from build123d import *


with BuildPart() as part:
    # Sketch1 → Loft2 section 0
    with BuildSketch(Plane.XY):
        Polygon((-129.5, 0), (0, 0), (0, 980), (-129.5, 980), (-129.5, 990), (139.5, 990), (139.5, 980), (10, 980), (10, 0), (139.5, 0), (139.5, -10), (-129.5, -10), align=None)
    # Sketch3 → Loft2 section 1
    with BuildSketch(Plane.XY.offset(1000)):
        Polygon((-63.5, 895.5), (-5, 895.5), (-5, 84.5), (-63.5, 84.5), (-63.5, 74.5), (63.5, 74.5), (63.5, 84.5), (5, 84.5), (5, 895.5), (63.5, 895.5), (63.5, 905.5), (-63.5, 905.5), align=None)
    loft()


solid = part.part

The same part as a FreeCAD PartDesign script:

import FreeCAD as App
import Part
import Sketcher
from FreeCAD import Vector

doc = App.newDocument("Part")
body = doc.addObject("PartDesign::Body", "Body")

sketch1 = body.newObject("Sketcher::SketchObject", "Sketch")
sketch1.AttachmentSupport = (doc.getObject("XY_Plane"), [""])
sketch1.MapMode = "FlatFace"
sketch1.addGeometry(Part.LineSegment(Vector(0, 0, 0), Vector(-130, 0, 0)), False)
sketch1.addGeometry(Part.LineSegment(Vector(-130, 0, 0), Vector(-130, -10, 0)), False)
sketch1.addGeometry(Part.LineSegment(Vector(-130, -10, 0), Vector(140, -10, 0)), False)
sketch1.addGeometry(Part.LineSegment(Vector(140, -10, 0), Vector(140, 0, 0)), False)
sketch1.addGeometry(Part.LineSegment(Vector(140, 0, 0), Vector(10, 0, 0)), False)
sketch1.addGeometry(Part.LineSegment(Vector(10, 0, 0), Vector(10, 980, 0)), False)
sketch1.addGeometry(Part.LineSegment(Vector(10, 980, 0), Vector(140, 980, 0)), False)
sketch1.addGeometry(Part.LineSegment(Vector(140, 980, 0), Vector(140, 990, 0)), False)
sketch1.addGeometry(Part.LineSegment(Vector(140, 990, 0), Vector(-130, 990, 0)), False)
sketch1.addGeometry(Part.LineSegment(Vector(-130, 990, 0), Vector(-130, 980, 0)), False)
sketch1.addGeometry(Part.LineSegment(Vector(-130, 980, 0), Vector(0, 980, 0)), False)
sketch1.addGeometry(Part.LineSegment(Vector(0, 980, 0), Vector(0, 0, 0)), False)
sketch1.addConstraint(Sketcher.Constraint("Coincident", 0, 2, 1, 1))
sketch1.addConstraint(Sketcher.Constraint("Coincident", 1, 2, 2, 1))
sketch1.addConstraint(Sketcher.Constraint("Coincident", 2, 2, 3, 1))
sketch1.addConstraint(Sketcher.Constraint("Coincident", 3, 2, 4, 1))
sketch1.addConstraint(Sketcher.Constraint("Coincident", 4, 2, 5, 1))
sketch1.addConstraint(Sketcher.Constraint("Coincident", 5, 2, 6, 1))
sketch1.addConstraint(Sketcher.Constraint("Coincident", 6, 2, 7, 1))
sketch1.addConstraint(Sketcher.Constraint("Coincident", 7, 2, 8, 1))
sketch1.addConstraint(Sketcher.Constraint("Coincident", 8, 2, 9, 1))
sketch1.addConstraint(Sketcher.Constraint("Coincident", 9, 2, 10, 1))
sketch1.addConstraint(Sketcher.Constraint("Coincident", 10, 2, 11, 1))
sketch1.addConstraint(Sketcher.Constraint("Coincident", 11, 2, 0, 1))
sketch1.addConstraint(Sketcher.Constraint("Horizontal", 0))
sketch1.addConstraint(Sketcher.Constraint("Vertical", 1))
sketch1.addConstraint(Sketcher.Constraint("Horizontal", 2))
sketch1.addConstraint(Sketcher.Constraint("Vertical", 3))
sketch1.addConstraint(Sketcher.Constraint("Horizontal", 4))
sketch1.addConstraint(Sketcher.Constraint("Vertical", 5))
sketch1.addConstraint(Sketcher.Constraint("Horizontal", 6))
sketch1.addConstraint(Sketcher.Constraint("Vertical", 7))
sketch1.addConstraint(Sketcher.Constraint("Horizontal", 8))
sketch1.addConstraint(Sketcher.Constraint("Vertical", 9))
sketch1.addConstraint(Sketcher.Constraint("Horizontal", 10))
sketch1.addConstraint(Sketcher.Constraint("Vertical", 11))
sketch1.addConstraint(Sketcher.Constraint("Coincident", 11, 2, -1, 1))
sketch1.addConstraint(Sketcher.Constraint("PointOnObject", 3, 2, -1))
sketch1.addConstraint(Sketcher.Constraint("Horizontal", 6, 2, 9, 2))
sketch1.addConstraint(Sketcher.Constraint("Vertical", 3, 2, 6, 2))
sketch1.addConstraint(Sketcher.Constraint("Vertical", 1, 2, 8, 2))
sketch1.addConstraint(Sketcher.Constraint("Equal", 0, 4))
sketch1.addConstraint(Sketcher.Constraint("Equal", 3, 7))
sketch1.addConstraint(Sketcher.Constraint("DistanceX", 2, 1, 2, 2, 269.0))
sketch1.addConstraint(Sketcher.Constraint("DistanceY", 1, 2, 1, 1, 10.0))
sketch1.addConstraint(Sketcher.Constraint("DistanceY", 5, 1, 5, 2, 980.0))
sketch1.addConstraint(Sketcher.Constraint("DistanceX", 0, 2, 0, 1, 129.5))

sketch2 = body.newObject("Sketcher::SketchObject", "Sketch001")
sketch2.AttachmentSupport = (doc.getObject("XY_Plane"), [""])
sketch2.MapMode = "FlatFace"
sketch2.AttachmentOffset = App.Placement(Vector(0, 0, 1000), App.Rotation())
sketch2.addGeometry(Part.LineSegment(Vector(-64, 896, 0), Vector(-5, 896, 0)), False)
sketch2.addGeometry(Part.LineSegment(Vector(-5, 896, 0), Vector(-5, 84, 0)), False)
sketch2.addGeometry(Part.LineSegment(Vector(-5, 84, 0), Vector(-64, 84, 0)), False)
sketch2.addGeometry(Part.LineSegment(Vector(-64, 84, 0), Vector(-64, 74, 0)), False)
sketch2.addGeometry(Part.LineSegment(Vector(-64, 74, 0), Vector(64, 74, 0)), False)
sketch2.addGeometry(Part.LineSegment(Vector(64, 74, 0), Vector(64, 84, 0)), False)
sketch2.addGeometry(Part.LineSegment(Vector(64, 84, 0), Vector(5, 84, 0)), False)
sketch2.addGeometry(Part.LineSegment(Vector(5, 84, 0), Vector(5, 896, 0)), False)
sketch2.addGeometry(Part.LineSegment(Vector(5, 896, 0), Vector(64, 896, 0)), False)
sketch2.addGeometry(Part.LineSegment(Vector(64, 896, 0), Vector(64, 906, 0)), False)
sketch2.addGeometry(Part.LineSegment(Vector(64, 906, 0), Vector(-64, 906, 0)), False)
sketch2.addGeometry(Part.LineSegment(Vector(-64, 906, 0), Vector(-64, 896, 0)), False)
sketch2.addConstraint(Sketcher.Constraint("Coincident", 0, 2, 1, 1))
sketch2.addConstraint(Sketcher.Constraint("Coincident", 1, 2, 2, 1))
sketch2.addConstraint(Sketcher.Constraint("Coincident", 2, 2, 3, 1))
sketch2.addConstraint(Sketcher.Constraint("Coincident", 3, 2, 4, 1))
sketch2.addConstraint(Sketcher.Constraint("Coincident", 4, 2, 5, 1))
sketch2.addConstraint(Sketcher.Constraint("Coincident", 5, 2, 6, 1))
sketch2.addConstraint(Sketcher.Constraint("Coincident", 6, 2, 7, 1))
sketch2.addConstraint(Sketcher.Constraint("Coincident", 7, 2, 8, 1))
sketch2.addConstraint(Sketcher.Constraint("Coincident", 8, 2, 9, 1))
sketch2.addConstraint(Sketcher.Constraint("Coincident", 9, 2, 10, 1))
sketch2.addConstraint(Sketcher.Constraint("Coincident", 10, 2, 11, 1))
sketch2.addConstraint(Sketcher.Constraint("Coincident", 11, 2, 0, 1))
sketch2.addConstraint(Sketcher.Constraint("Horizontal", 0))
sketch2.addConstraint(Sketcher.Constraint("Vertical", 1))
sketch2.addConstraint(Sketcher.Constraint("Horizontal", 2))
sketch2.addConstraint(Sketcher.Constraint("Vertical", 3))
sketch2.addConstraint(Sketcher.Constraint("Horizontal", 4))
sketch2.addConstraint(Sketcher.Constraint("Vertical", 5))
sketch2.addConstraint(Sketcher.Constraint("Horizontal", 6))
sketch2.addConstraint(Sketcher.Constraint("Vertical", 7))
sketch2.addConstraint(Sketcher.Constraint("Horizontal", 8))
sketch2.addConstraint(Sketcher.Constraint("Vertical", 9))
sketch2.addConstraint(Sketcher.Constraint("Horizontal", 10))
sketch2.addConstraint(Sketcher.Constraint("Vertical", 11))
sketch2.addConstraint(Sketcher.Constraint("Symmetric", 2, 2, 5, 2, -2))
sketch2.addConstraint(Sketcher.Constraint("Symmetric", 0, 2, 7, 2, -2))
sketch2.addConstraint(Sketcher.Constraint("Vertical", 5, 2, 8, 2))
sketch2.addConstraint(Sketcher.Constraint("Vertical", 3, 2, 10, 2))
sketch2.addConstraint(Sketcher.Constraint("Equal", 5, 9))
sketch2.addConstraint(Sketcher.Constraint("DistanceX", 4, 1, 4, 2, 127.0))
sketch2.addConstraint(Sketcher.Constraint("DistanceY", 1, 2, 1, 1, 811.0))
sketch2.addConstraint(Sketcher.Constraint("DistanceY", 3, 2, 3, 1, 10.0))
sketch2.addConstraint(Sketcher.Constraint("DistanceX", 0, 1, 0, 2, 58.5))
sketch2.addConstraint(Sketcher.Constraint("DistanceY", -1, 1, 0, 2, 895.5))

additiveloft = body.newObject("PartDesign::AdditiveLoft", "AdditiveLoft")
additiveloft.Profile = sketch1
additiveloft.Sections = [sketch2]

doc.recompute()
